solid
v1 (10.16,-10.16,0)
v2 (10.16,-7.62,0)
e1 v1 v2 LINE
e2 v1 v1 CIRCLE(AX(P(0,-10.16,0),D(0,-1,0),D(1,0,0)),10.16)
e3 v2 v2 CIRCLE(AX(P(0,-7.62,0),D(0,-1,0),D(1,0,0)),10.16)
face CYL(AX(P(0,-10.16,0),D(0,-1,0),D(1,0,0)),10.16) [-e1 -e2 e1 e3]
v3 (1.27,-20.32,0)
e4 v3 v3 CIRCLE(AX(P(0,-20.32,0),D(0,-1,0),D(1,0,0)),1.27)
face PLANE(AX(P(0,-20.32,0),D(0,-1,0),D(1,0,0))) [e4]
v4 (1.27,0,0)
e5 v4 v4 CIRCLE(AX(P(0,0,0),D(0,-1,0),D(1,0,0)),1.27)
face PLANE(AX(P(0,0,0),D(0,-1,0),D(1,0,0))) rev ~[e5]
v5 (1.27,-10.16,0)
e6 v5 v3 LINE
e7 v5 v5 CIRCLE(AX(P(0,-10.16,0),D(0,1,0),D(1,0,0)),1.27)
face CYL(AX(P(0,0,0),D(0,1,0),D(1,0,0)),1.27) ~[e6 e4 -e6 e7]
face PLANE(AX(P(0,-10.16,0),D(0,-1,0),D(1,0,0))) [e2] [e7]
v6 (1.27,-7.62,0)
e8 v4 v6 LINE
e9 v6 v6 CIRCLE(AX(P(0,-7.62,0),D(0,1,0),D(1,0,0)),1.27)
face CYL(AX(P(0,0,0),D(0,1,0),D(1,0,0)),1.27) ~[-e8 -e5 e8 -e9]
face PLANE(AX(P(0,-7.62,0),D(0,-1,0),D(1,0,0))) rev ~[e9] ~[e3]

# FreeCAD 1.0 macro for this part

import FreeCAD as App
import Part
import Sketcher
Q = App.Units.Quantity

doc = App.newDocument("Part")
body = doc.addObject("PartDesign::Body", "Body")

# Sketch on XZ plane
sketch1 = body.newObject("Sketcher::SketchObject", "Sketch")
sketch1.AttachmentSupport = (doc.getObject("XZ_Plane"), [""])
sketch1.MapMode = "FlatFace"
sketch1.addGeometry(Part.Circle(App.Vector(0, 0, 0), App.Vector(0, 0, 1), 1.3), False)
sketch1.addConstraint([
    Sketcher.Constraint("Coincident", 0, 3, -1, 1),
    Sketcher.Constraint("Diameter", 0, Q("0.1 in")),
])
pad1 = body.newObject("PartDesign::Pad", "Pad")
pad1.Profile = sketch1
pad1.Length = Q("0.8 in")

# Sketch on XZ plane
sketch2 = body.newObject("Sketcher::SketchObject", "Sketch001")
sketch2.AttachmentSupport = (doc.getObject("XZ_Plane"), [""])
sketch2.MapMode = "FlatFace"
sketch2.AttachmentOffset = App.Placement(App.Vector(0, 0, 0.4 * 25.4), App.Rotation())
sketch2.addGeometry(Part.Circle(App.Vector(0, 0, 0), App.Vector(0, 0, 1), 10), False)
sketch2.addConstraint([
    Sketcher.Constraint("Coincident", 0, 3, -1, 1),
    Sketcher.Constraint("Diameter", 0, Q("0.8 in")),
])
pad2 = body.newObject("PartDesign::Pad", "Pad001")
pad2.Profile = sketch2
pad2.Length = Q("0.1 in")
pad2.Reversed = True

doc.recompute()
